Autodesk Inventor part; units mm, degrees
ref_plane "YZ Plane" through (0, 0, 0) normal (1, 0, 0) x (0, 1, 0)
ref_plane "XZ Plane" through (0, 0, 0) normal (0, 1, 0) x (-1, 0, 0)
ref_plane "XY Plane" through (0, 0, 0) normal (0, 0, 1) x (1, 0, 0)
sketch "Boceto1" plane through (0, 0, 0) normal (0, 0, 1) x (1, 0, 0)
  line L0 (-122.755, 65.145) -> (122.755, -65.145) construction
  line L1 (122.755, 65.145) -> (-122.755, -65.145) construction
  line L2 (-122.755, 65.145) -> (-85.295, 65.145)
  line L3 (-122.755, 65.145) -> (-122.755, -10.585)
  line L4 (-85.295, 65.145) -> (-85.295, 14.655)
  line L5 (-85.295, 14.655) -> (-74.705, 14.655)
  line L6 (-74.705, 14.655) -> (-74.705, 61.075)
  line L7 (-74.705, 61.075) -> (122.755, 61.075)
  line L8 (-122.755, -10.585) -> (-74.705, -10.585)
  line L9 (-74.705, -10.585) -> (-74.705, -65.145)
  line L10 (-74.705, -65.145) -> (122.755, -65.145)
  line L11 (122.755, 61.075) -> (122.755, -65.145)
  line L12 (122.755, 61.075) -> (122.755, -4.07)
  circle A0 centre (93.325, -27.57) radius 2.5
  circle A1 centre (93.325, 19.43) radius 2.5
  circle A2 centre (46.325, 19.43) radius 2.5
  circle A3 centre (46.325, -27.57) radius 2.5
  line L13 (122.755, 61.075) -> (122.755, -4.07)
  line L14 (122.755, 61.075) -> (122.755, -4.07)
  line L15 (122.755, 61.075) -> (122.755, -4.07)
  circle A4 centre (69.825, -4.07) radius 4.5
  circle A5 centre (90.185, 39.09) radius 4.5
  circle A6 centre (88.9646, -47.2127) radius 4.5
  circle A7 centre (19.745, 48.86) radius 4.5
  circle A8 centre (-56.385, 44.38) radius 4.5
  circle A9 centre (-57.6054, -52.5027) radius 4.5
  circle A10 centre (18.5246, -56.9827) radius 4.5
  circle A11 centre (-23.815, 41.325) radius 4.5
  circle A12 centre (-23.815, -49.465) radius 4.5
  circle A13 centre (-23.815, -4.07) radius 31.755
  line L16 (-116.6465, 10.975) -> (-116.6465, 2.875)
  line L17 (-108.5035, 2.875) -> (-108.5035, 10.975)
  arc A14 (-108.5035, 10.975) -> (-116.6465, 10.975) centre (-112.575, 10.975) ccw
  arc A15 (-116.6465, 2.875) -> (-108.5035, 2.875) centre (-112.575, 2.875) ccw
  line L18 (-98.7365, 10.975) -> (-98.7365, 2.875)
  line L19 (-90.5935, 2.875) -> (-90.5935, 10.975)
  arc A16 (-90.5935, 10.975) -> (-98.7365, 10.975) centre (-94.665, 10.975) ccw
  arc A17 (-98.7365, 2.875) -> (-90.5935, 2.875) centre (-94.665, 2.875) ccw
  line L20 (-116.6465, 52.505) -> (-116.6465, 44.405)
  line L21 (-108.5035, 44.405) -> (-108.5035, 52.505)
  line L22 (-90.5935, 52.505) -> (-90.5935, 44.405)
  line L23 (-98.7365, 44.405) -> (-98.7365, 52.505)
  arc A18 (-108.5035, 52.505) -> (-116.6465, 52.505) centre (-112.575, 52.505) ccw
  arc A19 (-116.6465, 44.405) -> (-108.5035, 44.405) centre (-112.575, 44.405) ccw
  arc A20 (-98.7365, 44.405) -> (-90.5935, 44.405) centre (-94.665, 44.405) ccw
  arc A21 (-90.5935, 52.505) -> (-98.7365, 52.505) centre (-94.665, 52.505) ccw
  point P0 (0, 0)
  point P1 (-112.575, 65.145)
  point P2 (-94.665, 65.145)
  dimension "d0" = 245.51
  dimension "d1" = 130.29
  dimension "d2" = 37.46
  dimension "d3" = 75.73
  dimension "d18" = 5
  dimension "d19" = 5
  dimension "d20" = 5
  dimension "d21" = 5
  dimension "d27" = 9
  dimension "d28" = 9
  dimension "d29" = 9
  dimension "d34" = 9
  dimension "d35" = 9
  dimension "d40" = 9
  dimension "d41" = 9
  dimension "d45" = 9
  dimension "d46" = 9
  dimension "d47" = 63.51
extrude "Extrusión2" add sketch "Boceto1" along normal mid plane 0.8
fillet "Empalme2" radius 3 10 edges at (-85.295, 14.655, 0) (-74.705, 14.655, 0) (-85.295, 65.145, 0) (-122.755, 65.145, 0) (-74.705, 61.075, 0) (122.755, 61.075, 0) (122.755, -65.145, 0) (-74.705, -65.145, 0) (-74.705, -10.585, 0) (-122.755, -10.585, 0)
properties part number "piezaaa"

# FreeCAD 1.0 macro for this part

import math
import FreeCAD as App
import Part
import Sketcher

V = App.Vector


def edges_at(feature, points):
    """Names of the edges that pass closest to the given points."""
    edges = feature.Shape.Edges
    near = lambda p: min(range(len(edges)), key=lambda i: edges[i].distToShape(Part.Vertex(*p))[0])
    return sorted({f"Edge{near(p) + 1}" for p in points})


def add_polygon(sketch, points):
    """Adds a closed chain of lines whose ends are joined by coincident constraints."""
    first, n = sketch.GeometryCount, len(points)
    for a, b in zip(points, points[1:] + points[:1]):
        sketch.addGeometry(Part.LineSegment(App.Vector(*a, 0), App.Vector(*b, 0)), False)
    for i in range(n):
        sketch.addConstraint(Sketcher.Constraint("Coincident", first + i, 2, first + (i + 1) % n, 1))

doc = App.newDocument("Part")
body = doc.addObject("PartDesign::Body", "Body")

# Sketch on XY plane
sketch1 = body.newObject("Sketcher::SketchObject", "Sketch")
sketch1.AttachmentSupport = (doc.getObject("XY_Plane"), [""])
sketch1.MapMode = "FlatFace"
add_polygon(sketch1, [(-85.295, 65.145), (-122.755, 65.145), (-122.755, -10.585), (-74.705, -10.585), (-74.705, -65.145), (122.755, -65.145), (122.755, 61.075), (-74.705, 61.075), (-74.705, 14.655), (-85.295, 14.655)])  # lines 0-9
sketch1.addGeometry(Part.Circle(V(-57.6054, -52.5027, 0), V(0, 0, 1), 4.5), False)  # 10
sketch1.addGeometry(Part.Circle(V(-23.815, -49.465, 0), V(0, 0, 1), 4.5), False)  # 11
sketch1.addGeometry(Part.Circle(V(-23.815, -4.07, 0), V(0, 0, 1), 31.755), False)  # 12
sketch1.addGeometry(Part.Circle(V(18.5246, -56.9827, 0), V(0, 0, 1), 4.5), False)  # 13
sketch1.addGeometry(Part.Circle(V(88.9646, -47.2127, 0), V(0, 0, 1), 4.5), False)  # 14
sketch1.addGeometry(Part.Circle(V(46.325, -27.57, 0), V(0, 0, 1), 2.5), False)  # 15
sketch1.addGeometry(Part.Circle(V(93.325, -27.57, 0), V(0, 0, 1), 2.5), False)  # 16
sketch1.addGeometry(Part.Circle(V(69.825, -4.07, 0), V(0, 0, 1), 4.5), False)  # 17
sketch1.addGeometry(Part.LineSegment(V(-116.6465, 2.875, 0), V(-116.6465, 10.975, 0)), False)  # 18
sketch1.addGeometry(Part.ArcOfCircle(Part.Circle(V(-112.575, 10.975, 0), V(0, 0, 1), 4.0715), math.radians(0), math.radians(180)), False)  # 19
sketch1.addGeometry(Part.LineSegment(V(-108.5035, 10.975, 0), V(-108.5035, 2.875, 0)), False)  # 20
sketch1.addGeometry(Part.ArcOfCircle(Part.Circle(V(-112.575, 2.875, 0), V(0, 0, 1), 4.0715), math.radians(180), math.radians(360)), False)  # 21
sketch1.addGeometry(Part.LineSegment(V(-98.7365, 2.875, 0), V(-98.7365, 10.975, 0)), False)  # 22
sketch1.addGeometry(Part.ArcOfCircle(Part.Circle(V(-94.665, 10.975, 0), V(0, 0, 1), 4.0715), math.radians(0), math.radians(180)), False)  # 23
sketch1.addGeometry(Part.LineSegment(V(-90.5935, 10.975, 0), V(-90.5935, 2.875, 0)), False)  # 24
sketch1.addGeometry(Part.ArcOfCircle(Part.Circle(V(-94.665, 2.875, 0), V(0, 0, 1), 4.0715), math.radians(180), math.radians(360)), False)  # 25
sketch1.addGeometry(Part.LineSegment(V(-116.6465, 44.405, 0), V(-116.6465, 52.505, 0)), False)  # 26
sketch1.addGeometry(Part.ArcOfCircle(Part.Circle(V(-112.575, 52.505, 0), V(0, 0, 1), 4.0715), math.radians(0), math.radians(180)), False)  # 27
sketch1.addGeometry(Part.LineSegment(V(-108.5035, 52.505, 0), V(-108.5035, 44.405, 0)), False)  # 28
sketch1.addGeometry(Part.ArcOfCircle(Part.Circle(V(-112.575, 44.405, 0), V(0, 0, 1), 4.0715), math.radians(180), math.radians(360)), False)  # 29
sketch1.addGeometry(Part.ArcOfCircle(Part.Circle(V(-94.665, 52.505, 0), V(0, 0, 1), 4.0715), math.radians(0), math.radians(180)), False)  # 30
sketch1.addGeometry(Part.LineSegment(V(-90.5935, 52.505, 0), V(-90.5935, 44.405, 0)), False)  # 31
sketch1.addGeometry(Part.ArcOfCircle(Part.Circle(V(-94.665, 44.405, 0), V(0, 0, 1), 4.0715), math.radians(180), math.radians(360)), False)  # 32
sketch1.addGeometry(Part.LineSegment(V(-98.7365, 44.405, 0), V(-98.7365, 52.505, 0)), False)  # 33
sketch1.addGeometry(Part.Circle(V(-56.385, 44.38, 0), V(0, 0, 1), 4.5), False)  # 34
sketch1.addGeometry(Part.Circle(V(-23.815, 41.325, 0), V(0, 0, 1), 4.5), False)  # 35
sketch1.addGeometry(Part.Circle(V(46.325, 19.43, 0), V(0, 0, 1), 2.5), False)  # 36
sketch1.addGeometry(Part.Circle(V(93.325, 19.43, 0), V(0, 0, 1), 2.5), False)  # 37
sketch1.addGeometry(Part.Circle(V(19.745, 48.86, 0), V(0, 0, 1), 4.5), False)  # 38
sketch1.addGeometry(Part.Circle(V(90.185, 39.09, 0), V(0, 0, 1), 4.5), False)  # 39
sketch1.addConstraint([
    Sketcher.Constraint("Tangent", 18, 2, 19, 2),
    Sketcher.Constraint("Tangent", 19, 1, 20, 1),
    Sketcher.Constraint("Tangent", 20, 2, 21, 2),
    Sketcher.Constraint("Tangent", 21, 1, 18, 1),
    Sketcher.Constraint("Tangent", 22, 2, 23, 2),
    Sketcher.Constraint("Tangent", 23, 1, 24, 1),
    Sketcher.Constraint("Tangent", 24, 2, 25, 2),
    Sketcher.Constraint("Tangent", 25, 1, 22, 1),
    Sketcher.Constraint("Tangent", 26, 2, 27, 2),
    Sketcher.Constraint("Tangent", 27, 1, 28, 1),
    Sketcher.Constraint("Tangent", 28, 2, 29, 2),
    Sketcher.Constraint("Tangent", 29, 1, 26, 1),
    Sketcher.Constraint("Tangent", 30, 1, 31, 1),
    Sketcher.Constraint("Tangent", 31, 2, 32, 2),
    Sketcher.Constraint("Tangent", 32, 1, 33, 1),
    Sketcher.Constraint("Tangent", 33, 2, 30, 2),
    Sketcher.Constraint("Horizontal", 0),
    Sketcher.Constraint("Vertical", 1),
    Sketcher.Constraint("Horizontal", 2),
    Sketcher.Constraint("Vertical", 3),
    Sketcher.Constraint("Horizontal", 4),
    Sketcher.Constraint("Vertical", 5),
    Sketcher.Constraint("Horizontal", 6),
    Sketcher.Constraint("Vertical", 7),
    Sketcher.Constraint("Horizontal", 8),
    Sketcher.Constraint("Vertical", 9),
    Sketcher.Constraint("Vertical", 18),
    Sketcher.Constraint("Vertical", 20),
    Sketcher.Constraint("Vertical", 22),
    Sketcher.Constraint("Vertical", 24),
    Sketcher.Constraint("Vertical", 26),
    Sketcher.Constraint("Vertical", 28),
    Sketcher.Constraint("Vertical", 31),
    Sketcher.Constraint("Vertical", 33),
    Sketcher.Constraint("Equal", 10, 11),
    Sketcher.Constraint("Equal", 11, 13),
    Sketcher.Constraint("Equal", 13, 14),
    Sketcher.Constraint("Equal", 15, 16),
    Sketcher.Constraint("Equal", 14, 17),
    Sketcher.Constraint("Equal", 21, 23),
    Sketcher.Constraint("Equal", 25, 27),
    Sketcher.Constraint("Equal", 29, 30),
    Sketcher.Constraint("Equal", 17, 34),
    Sketcher.Constraint("Equal", 34, 35),
    Sketcher.Constraint("Equal", 16, 36),
    Sketcher.Constraint("Equal", 36, 37),
    Sketcher.Constraint("Equal", 35, 38),
    Sketcher.Constraint("Equal", 38, 39),
    Sketcher.Constraint("Symmetric", 0, 2, 4, 2, -1, 1),
    Sketcher.Constraint("Horizontal", 15, 3, 16, 3),
    Sketcher.Constraint("Horizontal", 12, 3, 17, 3),
    Sketcher.Constraint("Horizontal", 19, 3, 23, 3),
    Sketcher.Constraint("Horizontal", 21, 3, 25, 3),
    Sketcher.Constraint("Horizontal", 27, 3, 30, 3),
    Sketcher.Constraint("Horizontal", 29, 3, 32, 3),
    Sketcher.Constraint("Horizontal", 36, 3, 37, 3),
    Sketcher.Constraint("Vertical", 11, 3, 12, 3),
    Sketcher.Constraint("Vertical", 21, 3, 27, 3),
    Sketcher.Constraint("Vertical", 25, 3, 30, 3),
    Sketcher.Constraint("Vertical", 12, 3, 35, 3),
    Sketcher.Constraint("Vertical", 15, 3, 36, 3),
    Sketcher.Constraint("Vertical", 16, 3, 37, 3),
    Sketcher.Constraint("Vertical", 3, 2, 6, 2),
    Sketcher.Constraint("Equal", 24, 26),
    Sketcher.Constraint("Diameter", 10, 9.0),
    Sketcher.Constraint("Diameter", 15, 5.0),
    Sketcher.Constraint("Diameter", 12, 63.51),
    Sketcher.Constraint("DistanceX", 0, 2, 0, 1, 37.46),
    Sketcher.Constraint("DistanceY", 1, 2, 1, 1, 75.73),
    Sketcher.Constraint("DistanceY", 18, 1, 18, 2, 8.1),
    Sketcher.Constraint("DistanceX", 15, 3, 16, 3, 47.0),
    Sketcher.Constraint("DistanceY", 15, 3, 36, 3, 47.0),
    Sketcher.Constraint("DistanceX", 2, 1, 2, 2, 48.05),
    Sketcher.Constraint("DistanceX", 4, 1, 4, 2, 197.46),
    Sketcher.Constraint("DistanceY", 3, 2, 3, 1, 54.56),
    Sketcher.Constraint("DistanceY", 5, 1, 5, 2, 126.22),
    Sketcher.Constraint("DistanceY", 7, 2, 7, 1, 46.42),
    Sketcher.Constraint("Radius", 19, 4.0715),
    Sketcher.Constraint("DistanceY", 15, 3, 12, 3, 23.5),
    Sketcher.Constraint("DistanceX", 15, 3, 17, 3, 23.5),
    Sketcher.Constraint("DistanceX", 19, 3, 15, 3, 158.9),
    Sketcher.Constraint("DistanceY", 12, 3, -1, 1, 4.07),
    Sketcher.Constraint("DistanceY", -1, 1, 34, 3, 44.38),
    Sketcher.Constraint("DistanceY", -1, 1, 38, 3, 48.86),
    Sketcher.Constraint("DistanceY", -1, 1, 39, 3, 39.09),
    Sketcher.Constraint("DistanceX", 10, 3, 13, 3, 76.13),
    Sketcher.Constraint("DistanceY", 13, 3, 10, 3, 4.48),
    Sketcher.Constraint("DistanceX", 13, 3, 14, 3, 70.44),
    Sketcher.Constraint("DistanceY", 13, 3, 14, 3, 9.77),
    Sketcher.Constraint("DistanceX", 11, 3, 15, 3, 70.14),
    Sketcher.Constraint("DistanceY", 11, 3, 19, 3, 60.44),
    Sketcher.Constraint("DistanceX", 19, 3, 23, 3, 17.91),
    Sketcher.Constraint("DistanceY", 19, 3, 27, 3, 41.53),
    Sketcher.Constraint("DistanceX", 32, 3, 34, 3, 38.28),
    Sketcher.Constraint("DistanceY", 35, 3, 32, 3, 3.08),
    Sketcher.Constraint("DistanceX", 38, 3, 36, 3, 26.58),
    Sketcher.Constraint("DistanceX", 39, 3, 37, 3, 3.14),
    Sketcher.Constraint("DistanceX", 0, 2, 27, 3, 10.18),
    Sketcher.Constraint("DistanceY", 27, 3, 0, 2, 12.64),
    Sketcher.Constraint("DistanceX", 10, 3, -1, 1, 57.6054),
    Sketcher.Constraint("DistanceY", 10, 3, -1, 1, 52.5027),
])
pad1 = body.newObject("PartDesign::Pad", "Pad")
pad1.Profile = sketch1
pad1.Length = 0.8
pad1.Midplane = True
doc.recompute()

fillet = body.newObject("PartDesign::Fillet", "Fillet")
fillet.Base = (pad1, edges_at(pad1, [
    (-85.295, 14.655, 0),
    (-74.705, 14.655, 0),
    (-85.295, 65.145, 0),
    (-122.755, 65.145, 0),
    (-74.705, 61.075, 0),
    (122.755, 61.075, 0),
    (122.755, -65.145, 0),
    (-74.705, -65.145, 0),
    (-74.705, -10.585, 0),
    (-122.755, -10.585, 0),
]))
fillet.Radius = 3

doc.recompute()
